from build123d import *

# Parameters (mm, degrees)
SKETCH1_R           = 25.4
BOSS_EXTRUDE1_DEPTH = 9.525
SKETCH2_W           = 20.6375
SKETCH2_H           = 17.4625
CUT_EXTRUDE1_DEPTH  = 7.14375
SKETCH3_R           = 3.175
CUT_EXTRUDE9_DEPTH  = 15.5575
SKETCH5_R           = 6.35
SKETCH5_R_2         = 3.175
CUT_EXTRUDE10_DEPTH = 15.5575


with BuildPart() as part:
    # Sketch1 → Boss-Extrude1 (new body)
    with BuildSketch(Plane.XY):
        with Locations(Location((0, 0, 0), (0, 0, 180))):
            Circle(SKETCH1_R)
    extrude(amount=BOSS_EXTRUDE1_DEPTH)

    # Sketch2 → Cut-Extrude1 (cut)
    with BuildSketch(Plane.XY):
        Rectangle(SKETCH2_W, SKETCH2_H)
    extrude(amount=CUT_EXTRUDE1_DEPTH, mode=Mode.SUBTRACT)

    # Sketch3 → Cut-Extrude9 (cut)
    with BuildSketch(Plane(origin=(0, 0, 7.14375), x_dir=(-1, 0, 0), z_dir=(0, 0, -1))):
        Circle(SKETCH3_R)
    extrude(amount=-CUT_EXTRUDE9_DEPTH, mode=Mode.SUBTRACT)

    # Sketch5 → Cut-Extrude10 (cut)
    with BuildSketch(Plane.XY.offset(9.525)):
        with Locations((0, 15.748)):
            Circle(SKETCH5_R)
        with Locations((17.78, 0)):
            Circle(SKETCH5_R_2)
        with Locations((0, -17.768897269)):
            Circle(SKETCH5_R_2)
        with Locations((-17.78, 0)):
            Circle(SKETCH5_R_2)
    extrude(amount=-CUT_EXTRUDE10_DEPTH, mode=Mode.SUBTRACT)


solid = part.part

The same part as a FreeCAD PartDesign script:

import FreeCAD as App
import Part
import Sketcher

V = App.Vector
Q = App.Units.Quantity

doc = App.newDocument("Part")
body = doc.addObject("PartDesign::Body", "Body")

# Sketch on XY plane
sketch1 = doc.addObject("Sketcher::SketchObject", "Sketch")
body.addObject(sketch1)
sketch1.AttachmentSupport = (doc.XY_Plane, [""])
sketch1.MapMode = "FlatFace"
sketch1.addGeometry(Part.Circle(V(0, 0, 0), V(0, 0, 1), 25), False)
sketch1.addConstraint([
    Sketcher.Constraint("Coincident", 0, 3, -1, 1),
    Sketcher.Constraint("Diameter", 0, Q("2 in")),
])
pad1 = doc.addObject("PartDesign::Pad", "Pad")
body.addObject(pad1)
pad1.Profile = sketch1
pad1.Length = Q("0.375 in")

# Sketch on XY plane
sketch2 = doc.addObject("Sketcher::SketchObject", "Sketch001")
body.addObject(sketch2)
sketch2.AttachmentSupport = (doc.XY_Plane, [""])
sketch2.MapMode = "FlatFace"
sketch2.addGeometry([
    Part.LineSegment(V(-10, 9, 0), V(-10, -9, 0)),
    Part.LineSegment(V(-10, -9, 0), V(10, -9, 0)),
    Part.LineSegment(V(10, -9, 0), V(10, 9, 0)),
    Part.LineSegment(V(10, 9, 0), V(-10, 9, 0)),
], False)
sketch2.addConstraint([
    Sketcher.Constraint("Coincident", 0, 2, 1, 1),
    Sketcher.Constraint("Coincident", 1, 2, 2, 1),
    Sketcher.Constraint("Coincident", 2, 2, 3, 1),
    Sketcher.Constraint("Coincident", 3, 2, 0, 1),
    Sketcher.Constraint("Vertical", 0),
    Sketcher.Constraint("Horizontal", 1),
    Sketcher.Constraint("Vertical", 2),
    Sketcher.Constraint("Horizontal", 3),
    Sketcher.Constraint("Symmetric", 0, 2, 2, 2, -1, 1),
    Sketcher.Constraint("DistanceX", 1, 1, 1, 2, Q("0.8125 in")),
    Sketcher.Constraint("DistanceY", 0, 2, 0, 1, Q("0.6875 in")),
])
pocket1 = doc.addObject("PartDesign::Pocket", "Pocket")
body.addObject(pocket1)
pocket1.Profile = sketch2
pocket1.Length = Q("0.28125 in")
pocket1.Reversed = True

# Sketch on XY plane
sketch3 = doc.addObject("Sketcher::SketchObject", "Sketch002")
body.addObject(sketch3)
sketch3.AttachmentSupport = (doc.XY_Plane, [""])
sketch3.MapMode = "FlatFace"
sketch3.AttachmentOffset = App.Placement(V(0, 0, 0.28125 * 25.4), App.Rotation())
sketch3.addGeometry(Part.Circle(V(0, 0, 0), V(0, 0, 1), 3.2), False)
sketch3.addConstraint([
    Sketcher.Constraint("Coincident", 0, 3, -1, 1),
    Sketcher.Constraint("Diameter", 0, Q("0.25 in")),
])
pocket2 = doc.addObject("PartDesign::Pocket", "Pocket001")
body.addObject(pocket2)
pocket2.Profile = sketch3
pocket2.Length = Q("0.6125 in")
pocket2.Reversed = True

# Sketch on XY plane
sketch4 = doc.addObject("Sketcher::SketchObject", "Sketch003")
body.addObject(sketch4)
sketch4.AttachmentSupport = (doc.XY_Plane, [""])
sketch4.MapMode = "FlatFace"
sketch4.AttachmentOffset = App.Placement(V(0, 0, 0.375 * 25.4), App.Rotation())
sketch4.addGeometry([
    Part.Circle(V(0, 15.7, 0), V(0, 0, 1), 6.3),
    Part.Circle(V(17.8, 0, 0), V(0, 0, 1), 3.2),
    Part.Circle(V(0, -17.8, 0), V(0, 0, 1), 3.2),
    Part.Circle(V(-17.8, 0, 0), V(0, 0, 1), 3.2),
], False)
sketch4.addConstraint([
    Sketcher.Constraint("Equal", 1, 2),
    Sketcher.Constraint("Equal", 2, 3),
    Sketcher.Constraint("Symmetric", 1, 3, 3, 3, -1, 1),
    Sketcher.Constraint("PointOnObject", 0, 3, -2),
    Sketcher.Constraint("PointOnObject", 1, 3, -1),
    Sketcher.Constraint("PointOnObject", 2, 3, -2),
    Sketcher.Constraint("Diameter", 0, Q("0.5 in")),
    Sketcher.Constraint("Diameter", 1, Q("0.25 in")),
    Sketcher.Constraint("DistanceX", -1, 1, 1, 3, Q("0.7 in")),
    Sketcher.Constraint("DistanceY", -1, 1, 0, 3, Q("0.62 in")),
    Sketcher.Constraint("DistanceY", 2, 3, -1, 1, 17.768897),
])
pocket3 = doc.addObject("PartDesign::Pocket", "Pocket002")
body.addObject(pocket3)
pocket3.Profile = sketch4
pocket3.Length = Q("0.6125 in")

doc.recompute()
